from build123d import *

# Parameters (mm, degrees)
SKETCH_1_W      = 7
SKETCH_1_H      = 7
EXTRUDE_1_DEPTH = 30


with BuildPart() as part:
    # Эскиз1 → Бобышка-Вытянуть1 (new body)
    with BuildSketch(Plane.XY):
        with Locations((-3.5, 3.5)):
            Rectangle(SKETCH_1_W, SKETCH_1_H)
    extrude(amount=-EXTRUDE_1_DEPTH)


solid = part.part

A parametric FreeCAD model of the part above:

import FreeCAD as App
import Part
import Sketcher
Q = App.Units.Quantity


def add_polygon(sketch, points):
    """Adds a closed chain of lines whose ends are joined by coincident constraints."""
    first, n = sketch.GeometryCount, len(points)
    for a, b in zip(points, points[1:] + points[:1]):
        sketch.addGeometry(Part.LineSegment(App.Vector(*a, 0), App.Vector(*b, 0)), False)
    for i in range(n):
        sketch.addConstraint(Sketcher.Constraint("Coincident", first + i, 2, first + (i + 1) % n, 1))

doc = App.newDocument("Part")
body = doc.addObject("PartDesign::Body", "Body")

# Sketch on XY plane
sketch1 = doc.addObject("Sketcher::SketchObject", "Sketch")
body.addObject(sketch1)
sketch1.AttachmentSupport = (doc.XY_Plane, [""])
sketch1.MapMode = "FlatFace"
add_polygon(sketch1, [(-7, 7), (-7, 0), (0, 0), (0, 7)])  # lines 0-3
sketch1.addConstraint(Sketcher.Constraint("Vertical", 0))
sketch1.addConstraint(Sketcher.Constraint("Horizontal", 1))
sketch1.addConstraint(Sketcher.Constraint("Vertical", 2))
sketch1.addConstraint(Sketcher.Constraint("Horizontal", 3))
sketch1.addConstraint(Sketcher.Constraint("Coincident", 1, 2, -1, 1))
sketch1.addConstraint(Sketcher.Constraint("Equal", 3, 0))
sketch1.addConstraint(Sketcher.Constraint("DistanceX", 1, 1, 1, 2, Q("7 mm")))
pad1 = doc.addObject("PartDesign::Pad", "Pad")
body.addObject(pad1)
pad1.Profile = sketch1
pad1.Length = 30
pad1.Reversed = True

doc.recompute()
